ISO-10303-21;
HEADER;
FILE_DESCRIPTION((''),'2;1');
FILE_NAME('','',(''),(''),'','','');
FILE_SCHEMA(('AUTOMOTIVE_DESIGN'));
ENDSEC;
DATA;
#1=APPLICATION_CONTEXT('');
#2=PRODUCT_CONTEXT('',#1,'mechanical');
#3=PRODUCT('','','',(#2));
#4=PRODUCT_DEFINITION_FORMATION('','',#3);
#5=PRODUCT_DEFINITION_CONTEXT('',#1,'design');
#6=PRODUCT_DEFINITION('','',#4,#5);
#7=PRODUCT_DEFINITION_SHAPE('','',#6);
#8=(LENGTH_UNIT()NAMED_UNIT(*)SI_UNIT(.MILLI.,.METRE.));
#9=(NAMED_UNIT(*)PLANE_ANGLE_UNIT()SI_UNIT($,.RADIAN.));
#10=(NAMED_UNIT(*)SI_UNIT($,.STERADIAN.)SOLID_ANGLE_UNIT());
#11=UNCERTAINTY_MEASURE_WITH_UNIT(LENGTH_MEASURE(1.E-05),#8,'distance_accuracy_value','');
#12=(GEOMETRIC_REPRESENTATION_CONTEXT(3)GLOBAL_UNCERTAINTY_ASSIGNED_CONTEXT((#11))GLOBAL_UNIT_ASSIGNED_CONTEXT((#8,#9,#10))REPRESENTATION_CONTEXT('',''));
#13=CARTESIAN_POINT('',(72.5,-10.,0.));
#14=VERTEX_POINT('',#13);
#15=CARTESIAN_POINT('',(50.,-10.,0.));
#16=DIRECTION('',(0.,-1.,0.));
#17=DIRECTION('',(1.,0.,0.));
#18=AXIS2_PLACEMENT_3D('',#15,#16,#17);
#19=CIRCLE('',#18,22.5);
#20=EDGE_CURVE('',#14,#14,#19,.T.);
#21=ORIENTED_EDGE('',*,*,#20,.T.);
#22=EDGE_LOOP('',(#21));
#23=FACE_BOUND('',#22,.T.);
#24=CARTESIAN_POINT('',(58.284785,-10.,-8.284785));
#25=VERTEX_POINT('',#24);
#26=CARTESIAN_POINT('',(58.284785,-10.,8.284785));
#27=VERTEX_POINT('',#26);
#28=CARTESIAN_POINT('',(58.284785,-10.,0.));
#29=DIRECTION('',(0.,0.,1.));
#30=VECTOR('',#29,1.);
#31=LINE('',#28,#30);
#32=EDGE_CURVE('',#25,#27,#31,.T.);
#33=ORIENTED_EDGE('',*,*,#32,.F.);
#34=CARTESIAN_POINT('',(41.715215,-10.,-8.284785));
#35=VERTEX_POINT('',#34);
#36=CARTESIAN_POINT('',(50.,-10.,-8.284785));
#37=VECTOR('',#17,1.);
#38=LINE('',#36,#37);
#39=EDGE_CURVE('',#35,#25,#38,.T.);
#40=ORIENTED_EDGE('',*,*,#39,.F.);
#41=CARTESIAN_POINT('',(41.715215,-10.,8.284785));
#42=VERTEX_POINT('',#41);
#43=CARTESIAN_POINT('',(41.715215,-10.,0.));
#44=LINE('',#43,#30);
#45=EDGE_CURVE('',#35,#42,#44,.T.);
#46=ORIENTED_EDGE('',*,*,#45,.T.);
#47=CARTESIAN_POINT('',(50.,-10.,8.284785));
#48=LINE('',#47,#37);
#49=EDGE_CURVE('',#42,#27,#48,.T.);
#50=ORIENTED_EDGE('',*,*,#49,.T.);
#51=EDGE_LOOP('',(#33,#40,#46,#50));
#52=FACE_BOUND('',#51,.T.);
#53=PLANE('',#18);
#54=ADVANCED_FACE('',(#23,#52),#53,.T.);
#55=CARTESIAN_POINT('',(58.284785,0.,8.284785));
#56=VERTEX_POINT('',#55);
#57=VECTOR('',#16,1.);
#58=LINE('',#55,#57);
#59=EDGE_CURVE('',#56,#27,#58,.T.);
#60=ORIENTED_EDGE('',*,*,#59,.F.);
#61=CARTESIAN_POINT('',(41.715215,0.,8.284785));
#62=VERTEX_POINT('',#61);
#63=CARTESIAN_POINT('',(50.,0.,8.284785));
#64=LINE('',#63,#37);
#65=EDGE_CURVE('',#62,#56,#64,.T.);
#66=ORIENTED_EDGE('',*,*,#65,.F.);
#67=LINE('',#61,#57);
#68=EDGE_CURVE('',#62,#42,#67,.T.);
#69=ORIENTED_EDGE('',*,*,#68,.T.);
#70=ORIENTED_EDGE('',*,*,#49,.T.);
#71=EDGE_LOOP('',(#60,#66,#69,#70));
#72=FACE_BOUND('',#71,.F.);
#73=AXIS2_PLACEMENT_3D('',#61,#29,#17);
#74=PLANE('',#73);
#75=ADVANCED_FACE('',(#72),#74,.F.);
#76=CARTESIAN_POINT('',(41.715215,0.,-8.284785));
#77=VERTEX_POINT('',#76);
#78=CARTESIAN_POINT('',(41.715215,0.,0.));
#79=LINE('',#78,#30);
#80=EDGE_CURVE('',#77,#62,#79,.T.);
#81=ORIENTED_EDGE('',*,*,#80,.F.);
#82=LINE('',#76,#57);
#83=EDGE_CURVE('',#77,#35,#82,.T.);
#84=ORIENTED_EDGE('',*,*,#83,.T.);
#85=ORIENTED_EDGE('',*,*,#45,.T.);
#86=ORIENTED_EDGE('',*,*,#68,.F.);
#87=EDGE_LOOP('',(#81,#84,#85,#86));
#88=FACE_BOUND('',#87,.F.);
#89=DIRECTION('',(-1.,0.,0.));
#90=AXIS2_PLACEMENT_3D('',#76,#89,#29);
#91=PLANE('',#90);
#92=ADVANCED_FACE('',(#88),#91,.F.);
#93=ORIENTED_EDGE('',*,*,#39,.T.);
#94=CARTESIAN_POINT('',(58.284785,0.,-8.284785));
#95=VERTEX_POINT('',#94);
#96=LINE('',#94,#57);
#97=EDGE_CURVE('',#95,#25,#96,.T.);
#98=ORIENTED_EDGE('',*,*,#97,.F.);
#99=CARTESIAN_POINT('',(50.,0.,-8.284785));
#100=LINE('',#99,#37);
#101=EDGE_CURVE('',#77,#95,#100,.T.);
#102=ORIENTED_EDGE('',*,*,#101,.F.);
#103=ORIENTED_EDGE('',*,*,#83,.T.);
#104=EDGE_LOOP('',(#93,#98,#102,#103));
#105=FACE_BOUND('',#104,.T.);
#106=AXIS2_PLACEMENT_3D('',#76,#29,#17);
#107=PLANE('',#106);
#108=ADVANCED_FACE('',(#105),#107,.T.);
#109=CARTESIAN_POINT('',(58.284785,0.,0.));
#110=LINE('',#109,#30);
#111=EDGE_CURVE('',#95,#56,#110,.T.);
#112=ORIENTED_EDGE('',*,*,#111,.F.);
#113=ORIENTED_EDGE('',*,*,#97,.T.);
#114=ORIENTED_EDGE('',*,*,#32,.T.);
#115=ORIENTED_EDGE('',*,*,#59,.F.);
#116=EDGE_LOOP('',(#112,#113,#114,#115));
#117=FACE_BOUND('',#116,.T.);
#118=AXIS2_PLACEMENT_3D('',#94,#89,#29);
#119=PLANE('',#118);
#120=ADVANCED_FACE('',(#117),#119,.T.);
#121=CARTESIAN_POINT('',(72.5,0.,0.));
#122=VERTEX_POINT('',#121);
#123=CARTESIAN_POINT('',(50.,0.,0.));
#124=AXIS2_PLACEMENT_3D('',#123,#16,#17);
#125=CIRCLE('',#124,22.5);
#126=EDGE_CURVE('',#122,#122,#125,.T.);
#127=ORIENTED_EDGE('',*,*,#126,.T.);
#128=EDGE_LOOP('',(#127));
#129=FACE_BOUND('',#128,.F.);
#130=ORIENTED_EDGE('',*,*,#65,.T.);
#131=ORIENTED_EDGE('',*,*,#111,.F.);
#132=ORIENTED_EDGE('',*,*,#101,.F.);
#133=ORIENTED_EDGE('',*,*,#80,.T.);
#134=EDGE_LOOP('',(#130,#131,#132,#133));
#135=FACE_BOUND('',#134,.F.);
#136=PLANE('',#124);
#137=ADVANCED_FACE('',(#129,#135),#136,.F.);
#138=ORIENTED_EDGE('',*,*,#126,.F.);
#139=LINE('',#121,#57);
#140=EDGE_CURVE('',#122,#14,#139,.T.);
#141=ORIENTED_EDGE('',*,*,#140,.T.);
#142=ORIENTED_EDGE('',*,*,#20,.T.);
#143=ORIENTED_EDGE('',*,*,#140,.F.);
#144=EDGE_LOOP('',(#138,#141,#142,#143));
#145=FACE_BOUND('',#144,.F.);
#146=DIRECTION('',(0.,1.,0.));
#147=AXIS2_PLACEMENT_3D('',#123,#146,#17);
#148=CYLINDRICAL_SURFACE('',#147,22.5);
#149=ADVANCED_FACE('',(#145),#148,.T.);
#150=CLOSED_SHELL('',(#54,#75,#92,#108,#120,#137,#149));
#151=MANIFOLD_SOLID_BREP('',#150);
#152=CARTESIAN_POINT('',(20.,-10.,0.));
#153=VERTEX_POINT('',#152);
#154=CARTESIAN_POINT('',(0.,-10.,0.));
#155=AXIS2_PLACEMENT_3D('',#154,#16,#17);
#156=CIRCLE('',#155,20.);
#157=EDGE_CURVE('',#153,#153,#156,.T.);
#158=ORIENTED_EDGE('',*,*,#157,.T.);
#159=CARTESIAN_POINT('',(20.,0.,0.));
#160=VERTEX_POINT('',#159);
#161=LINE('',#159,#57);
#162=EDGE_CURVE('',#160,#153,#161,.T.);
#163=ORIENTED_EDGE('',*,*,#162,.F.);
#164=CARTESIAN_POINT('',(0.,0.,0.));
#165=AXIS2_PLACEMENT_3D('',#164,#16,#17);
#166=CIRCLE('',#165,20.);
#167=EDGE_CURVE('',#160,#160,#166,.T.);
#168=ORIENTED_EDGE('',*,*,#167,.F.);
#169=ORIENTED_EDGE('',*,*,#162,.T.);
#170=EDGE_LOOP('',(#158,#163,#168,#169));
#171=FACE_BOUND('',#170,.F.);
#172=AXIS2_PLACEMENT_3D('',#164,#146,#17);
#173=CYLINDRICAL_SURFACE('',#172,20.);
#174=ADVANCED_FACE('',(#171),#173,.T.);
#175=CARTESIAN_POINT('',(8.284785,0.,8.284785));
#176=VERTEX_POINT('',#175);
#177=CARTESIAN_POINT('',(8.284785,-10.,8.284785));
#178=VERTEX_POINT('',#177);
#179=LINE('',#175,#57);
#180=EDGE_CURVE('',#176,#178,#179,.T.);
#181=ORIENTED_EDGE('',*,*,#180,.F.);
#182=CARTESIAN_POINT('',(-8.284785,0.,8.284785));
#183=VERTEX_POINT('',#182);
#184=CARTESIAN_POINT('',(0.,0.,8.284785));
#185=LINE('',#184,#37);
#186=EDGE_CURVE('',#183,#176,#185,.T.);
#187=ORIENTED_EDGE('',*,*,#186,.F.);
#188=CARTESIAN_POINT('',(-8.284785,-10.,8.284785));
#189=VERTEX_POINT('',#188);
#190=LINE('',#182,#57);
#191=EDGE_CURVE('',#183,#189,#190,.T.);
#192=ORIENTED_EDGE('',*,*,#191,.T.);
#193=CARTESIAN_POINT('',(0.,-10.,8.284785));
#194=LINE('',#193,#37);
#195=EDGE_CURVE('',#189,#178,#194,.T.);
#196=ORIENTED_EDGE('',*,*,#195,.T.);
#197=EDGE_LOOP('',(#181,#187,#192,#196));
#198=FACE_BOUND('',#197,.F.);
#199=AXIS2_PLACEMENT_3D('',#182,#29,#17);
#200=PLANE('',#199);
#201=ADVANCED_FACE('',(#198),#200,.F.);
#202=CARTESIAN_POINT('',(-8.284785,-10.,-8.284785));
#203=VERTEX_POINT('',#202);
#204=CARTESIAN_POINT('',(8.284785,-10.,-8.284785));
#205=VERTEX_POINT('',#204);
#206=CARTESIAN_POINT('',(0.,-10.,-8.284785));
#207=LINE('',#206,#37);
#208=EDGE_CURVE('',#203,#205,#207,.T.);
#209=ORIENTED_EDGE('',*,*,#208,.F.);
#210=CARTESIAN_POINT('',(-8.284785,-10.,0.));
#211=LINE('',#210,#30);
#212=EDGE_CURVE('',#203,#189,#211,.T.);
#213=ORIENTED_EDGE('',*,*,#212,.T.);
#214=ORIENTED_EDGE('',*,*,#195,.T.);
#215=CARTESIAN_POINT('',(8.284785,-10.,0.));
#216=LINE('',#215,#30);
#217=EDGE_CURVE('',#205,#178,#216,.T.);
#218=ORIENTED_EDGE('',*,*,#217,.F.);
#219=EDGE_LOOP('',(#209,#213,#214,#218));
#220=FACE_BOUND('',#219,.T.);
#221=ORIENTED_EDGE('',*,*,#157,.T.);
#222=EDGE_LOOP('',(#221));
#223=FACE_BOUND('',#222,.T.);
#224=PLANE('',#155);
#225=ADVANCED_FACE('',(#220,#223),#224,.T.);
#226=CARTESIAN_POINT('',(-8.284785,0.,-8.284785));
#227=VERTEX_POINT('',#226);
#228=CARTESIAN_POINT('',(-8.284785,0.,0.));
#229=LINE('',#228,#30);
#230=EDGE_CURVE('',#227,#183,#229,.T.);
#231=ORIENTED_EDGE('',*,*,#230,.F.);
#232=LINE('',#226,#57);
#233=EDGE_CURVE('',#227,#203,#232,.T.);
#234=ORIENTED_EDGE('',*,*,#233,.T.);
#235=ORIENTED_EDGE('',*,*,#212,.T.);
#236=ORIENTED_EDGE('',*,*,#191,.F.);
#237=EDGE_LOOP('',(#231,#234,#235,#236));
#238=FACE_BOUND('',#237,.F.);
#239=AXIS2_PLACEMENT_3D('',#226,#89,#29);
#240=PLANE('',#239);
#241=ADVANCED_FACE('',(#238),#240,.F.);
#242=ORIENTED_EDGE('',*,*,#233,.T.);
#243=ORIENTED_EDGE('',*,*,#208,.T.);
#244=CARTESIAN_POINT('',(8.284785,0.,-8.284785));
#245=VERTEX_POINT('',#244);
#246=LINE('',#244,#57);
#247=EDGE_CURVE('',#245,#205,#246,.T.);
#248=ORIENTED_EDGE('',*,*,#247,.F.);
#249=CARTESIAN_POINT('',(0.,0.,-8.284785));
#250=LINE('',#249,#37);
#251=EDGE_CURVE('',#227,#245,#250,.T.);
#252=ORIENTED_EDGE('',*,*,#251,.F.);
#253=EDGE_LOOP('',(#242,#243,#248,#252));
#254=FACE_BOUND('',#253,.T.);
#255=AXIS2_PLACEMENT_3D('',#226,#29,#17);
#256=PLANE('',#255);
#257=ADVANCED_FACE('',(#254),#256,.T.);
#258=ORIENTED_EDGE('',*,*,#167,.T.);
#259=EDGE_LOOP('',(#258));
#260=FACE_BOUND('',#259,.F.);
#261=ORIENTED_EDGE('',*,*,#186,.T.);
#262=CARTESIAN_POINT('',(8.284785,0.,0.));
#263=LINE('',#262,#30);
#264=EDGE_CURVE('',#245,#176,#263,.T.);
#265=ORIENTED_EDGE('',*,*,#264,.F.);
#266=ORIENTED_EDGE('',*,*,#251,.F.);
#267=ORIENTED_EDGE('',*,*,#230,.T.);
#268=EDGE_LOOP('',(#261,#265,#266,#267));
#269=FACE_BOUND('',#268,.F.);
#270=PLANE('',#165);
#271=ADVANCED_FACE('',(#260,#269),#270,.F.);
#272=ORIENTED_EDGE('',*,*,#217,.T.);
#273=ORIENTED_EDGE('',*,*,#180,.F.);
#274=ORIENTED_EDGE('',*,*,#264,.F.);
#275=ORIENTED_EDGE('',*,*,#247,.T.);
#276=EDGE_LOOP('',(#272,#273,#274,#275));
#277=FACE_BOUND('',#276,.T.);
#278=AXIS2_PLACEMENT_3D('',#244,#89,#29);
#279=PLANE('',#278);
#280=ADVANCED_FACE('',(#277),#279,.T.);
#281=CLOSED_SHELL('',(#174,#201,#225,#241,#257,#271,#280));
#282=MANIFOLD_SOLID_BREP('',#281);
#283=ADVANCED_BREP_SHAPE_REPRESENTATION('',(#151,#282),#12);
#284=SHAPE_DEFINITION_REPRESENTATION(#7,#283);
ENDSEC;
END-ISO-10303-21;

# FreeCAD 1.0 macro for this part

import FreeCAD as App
import Part
import Sketcher

doc = App.newDocument("Part")
params = doc.addObject("Spreadsheet::Sheet", "Params")
for row, (alias, value) in enumerate([
    ("sketch1_diameter", "40 mm"),
    ("sketch1_diameter2", "45 mm"),
    ("pad1_length", "10 mm"),
], start=1):
    params.set(f"A{row}", alias)
    params.set(f"B{row}", "=" + value)
    params.setAlias(f"B{row}", alias)

body = doc.addObject("PartDesign::Body", "Body")
body.AllowCompound = True

# Sketch on XZ plane
sketch1 = body.newObject("Sketcher::SketchObject", "Sketch")
sketch1.AttachmentSupport = (doc.getObject("XZ_Plane"), [""])
sketch1.MapMode = "FlatFace"
sketch1.addGeometry([
    Part.Circle(App.Vector(0, 0, 0), App.Vector(0, 0, 1), 20),  # 0
    Part.LineSegment(App.Vector(8, -8, 0), App.Vector(-8, -8, 0)),  # 1
    Part.LineSegment(App.Vector(-8, -8, 0), App.Vector(-8, 8, 0)),  # 2
    Part.LineSegment(App.Vector(-8, 8, 0), App.Vector(8, 8, 0)),  # 3
    Part.LineSegment(App.Vector(8, 8, 0), App.Vector(8, -8, 0)),  # 4
    Part.Circle(App.Vector(50, 0, 0), App.Vector(0, 0, 1), 22),  # 5
    Part.LineSegment(App.Vector(58, -8, 0), App.Vector(42, -8, 0)),  # 6
    Part.LineSegment(App.Vector(42, -8, 0), App.Vector(42, 8, 0)),  # 7
    Part.LineSegment(App.Vector(42, 8, 0), App.Vector(58, 8, 0)),  # 8
    Part.LineSegment(App.Vector(58, 8, 0), App.Vector(58, -8, 0)),  # 9
], False)
sketch1.addConstraint([
    Sketcher.Constraint("Coincident", 1, 2, 2, 1),
    Sketcher.Constraint("Coincident", 2, 2, 3, 1),
    Sketcher.Constraint("Coincident", 3, 2, 4, 1),
    Sketcher.Constraint("Coincident", 4, 2, 1, 1),
    Sketcher.Constraint("Coincident", 6, 2, 7, 1),
    Sketcher.Constraint("Coincident", 7, 2, 8, 1),
    Sketcher.Constraint("Coincident", 8, 2, 9, 1),
    Sketcher.Constraint("Coincident", 9, 2, 6, 1),
    Sketcher.Constraint("Horizontal", 1),
    Sketcher.Constraint("Vertical", 2),
    Sketcher.Constraint("Horizontal", 3),
    Sketcher.Constraint("Vertical", 4),
    Sketcher.Constraint("Horizontal", 6),
    Sketcher.Constraint("Vertical", 7),
    Sketcher.Constraint("Horizontal", 8),
    Sketcher.Constraint("Vertical", 9),
    Sketcher.Constraint("Coincident", 0, 3, -1, 1),
    Sketcher.Constraint("Symmetric", 1, 2, 3, 2, -1, 1),
    Sketcher.Constraint("PointOnObject", 5, 3, -1),
    Sketcher.Constraint("Horizontal", 4, 2, 6, 2),
    Sketcher.Constraint("Horizontal", 3, 2, 7, 2),
    Sketcher.Constraint("Equal", 3, 6),
    Sketcher.Constraint("Equal", 8, 2),
    Sketcher.Constraint("Diameter", 0, 40.0),
    Sketcher.Constraint("Diameter", 5, 45.0),
    Sketcher.Constraint("DistanceX", -1, 1, 5, 3, 50.0),
    Sketcher.Constraint("DistanceX", 1, 2, 6, 2, 50.0),
    Sketcher.Constraint("DistanceX", 1, 2, 1, 1, 16.56957),
])
sketch1.setExpression("Constraints[23]", "Params.sketch1_diameter")
sketch1.setExpression("Constraints[24]", "Params.sketch1_diameter2")
pad1 = body.newObject("PartDesign::Pad", "Pad")
pad1.Profile = sketch1
pad1.setExpression("Length", "Params.pad1_length")

doc.recompute()
